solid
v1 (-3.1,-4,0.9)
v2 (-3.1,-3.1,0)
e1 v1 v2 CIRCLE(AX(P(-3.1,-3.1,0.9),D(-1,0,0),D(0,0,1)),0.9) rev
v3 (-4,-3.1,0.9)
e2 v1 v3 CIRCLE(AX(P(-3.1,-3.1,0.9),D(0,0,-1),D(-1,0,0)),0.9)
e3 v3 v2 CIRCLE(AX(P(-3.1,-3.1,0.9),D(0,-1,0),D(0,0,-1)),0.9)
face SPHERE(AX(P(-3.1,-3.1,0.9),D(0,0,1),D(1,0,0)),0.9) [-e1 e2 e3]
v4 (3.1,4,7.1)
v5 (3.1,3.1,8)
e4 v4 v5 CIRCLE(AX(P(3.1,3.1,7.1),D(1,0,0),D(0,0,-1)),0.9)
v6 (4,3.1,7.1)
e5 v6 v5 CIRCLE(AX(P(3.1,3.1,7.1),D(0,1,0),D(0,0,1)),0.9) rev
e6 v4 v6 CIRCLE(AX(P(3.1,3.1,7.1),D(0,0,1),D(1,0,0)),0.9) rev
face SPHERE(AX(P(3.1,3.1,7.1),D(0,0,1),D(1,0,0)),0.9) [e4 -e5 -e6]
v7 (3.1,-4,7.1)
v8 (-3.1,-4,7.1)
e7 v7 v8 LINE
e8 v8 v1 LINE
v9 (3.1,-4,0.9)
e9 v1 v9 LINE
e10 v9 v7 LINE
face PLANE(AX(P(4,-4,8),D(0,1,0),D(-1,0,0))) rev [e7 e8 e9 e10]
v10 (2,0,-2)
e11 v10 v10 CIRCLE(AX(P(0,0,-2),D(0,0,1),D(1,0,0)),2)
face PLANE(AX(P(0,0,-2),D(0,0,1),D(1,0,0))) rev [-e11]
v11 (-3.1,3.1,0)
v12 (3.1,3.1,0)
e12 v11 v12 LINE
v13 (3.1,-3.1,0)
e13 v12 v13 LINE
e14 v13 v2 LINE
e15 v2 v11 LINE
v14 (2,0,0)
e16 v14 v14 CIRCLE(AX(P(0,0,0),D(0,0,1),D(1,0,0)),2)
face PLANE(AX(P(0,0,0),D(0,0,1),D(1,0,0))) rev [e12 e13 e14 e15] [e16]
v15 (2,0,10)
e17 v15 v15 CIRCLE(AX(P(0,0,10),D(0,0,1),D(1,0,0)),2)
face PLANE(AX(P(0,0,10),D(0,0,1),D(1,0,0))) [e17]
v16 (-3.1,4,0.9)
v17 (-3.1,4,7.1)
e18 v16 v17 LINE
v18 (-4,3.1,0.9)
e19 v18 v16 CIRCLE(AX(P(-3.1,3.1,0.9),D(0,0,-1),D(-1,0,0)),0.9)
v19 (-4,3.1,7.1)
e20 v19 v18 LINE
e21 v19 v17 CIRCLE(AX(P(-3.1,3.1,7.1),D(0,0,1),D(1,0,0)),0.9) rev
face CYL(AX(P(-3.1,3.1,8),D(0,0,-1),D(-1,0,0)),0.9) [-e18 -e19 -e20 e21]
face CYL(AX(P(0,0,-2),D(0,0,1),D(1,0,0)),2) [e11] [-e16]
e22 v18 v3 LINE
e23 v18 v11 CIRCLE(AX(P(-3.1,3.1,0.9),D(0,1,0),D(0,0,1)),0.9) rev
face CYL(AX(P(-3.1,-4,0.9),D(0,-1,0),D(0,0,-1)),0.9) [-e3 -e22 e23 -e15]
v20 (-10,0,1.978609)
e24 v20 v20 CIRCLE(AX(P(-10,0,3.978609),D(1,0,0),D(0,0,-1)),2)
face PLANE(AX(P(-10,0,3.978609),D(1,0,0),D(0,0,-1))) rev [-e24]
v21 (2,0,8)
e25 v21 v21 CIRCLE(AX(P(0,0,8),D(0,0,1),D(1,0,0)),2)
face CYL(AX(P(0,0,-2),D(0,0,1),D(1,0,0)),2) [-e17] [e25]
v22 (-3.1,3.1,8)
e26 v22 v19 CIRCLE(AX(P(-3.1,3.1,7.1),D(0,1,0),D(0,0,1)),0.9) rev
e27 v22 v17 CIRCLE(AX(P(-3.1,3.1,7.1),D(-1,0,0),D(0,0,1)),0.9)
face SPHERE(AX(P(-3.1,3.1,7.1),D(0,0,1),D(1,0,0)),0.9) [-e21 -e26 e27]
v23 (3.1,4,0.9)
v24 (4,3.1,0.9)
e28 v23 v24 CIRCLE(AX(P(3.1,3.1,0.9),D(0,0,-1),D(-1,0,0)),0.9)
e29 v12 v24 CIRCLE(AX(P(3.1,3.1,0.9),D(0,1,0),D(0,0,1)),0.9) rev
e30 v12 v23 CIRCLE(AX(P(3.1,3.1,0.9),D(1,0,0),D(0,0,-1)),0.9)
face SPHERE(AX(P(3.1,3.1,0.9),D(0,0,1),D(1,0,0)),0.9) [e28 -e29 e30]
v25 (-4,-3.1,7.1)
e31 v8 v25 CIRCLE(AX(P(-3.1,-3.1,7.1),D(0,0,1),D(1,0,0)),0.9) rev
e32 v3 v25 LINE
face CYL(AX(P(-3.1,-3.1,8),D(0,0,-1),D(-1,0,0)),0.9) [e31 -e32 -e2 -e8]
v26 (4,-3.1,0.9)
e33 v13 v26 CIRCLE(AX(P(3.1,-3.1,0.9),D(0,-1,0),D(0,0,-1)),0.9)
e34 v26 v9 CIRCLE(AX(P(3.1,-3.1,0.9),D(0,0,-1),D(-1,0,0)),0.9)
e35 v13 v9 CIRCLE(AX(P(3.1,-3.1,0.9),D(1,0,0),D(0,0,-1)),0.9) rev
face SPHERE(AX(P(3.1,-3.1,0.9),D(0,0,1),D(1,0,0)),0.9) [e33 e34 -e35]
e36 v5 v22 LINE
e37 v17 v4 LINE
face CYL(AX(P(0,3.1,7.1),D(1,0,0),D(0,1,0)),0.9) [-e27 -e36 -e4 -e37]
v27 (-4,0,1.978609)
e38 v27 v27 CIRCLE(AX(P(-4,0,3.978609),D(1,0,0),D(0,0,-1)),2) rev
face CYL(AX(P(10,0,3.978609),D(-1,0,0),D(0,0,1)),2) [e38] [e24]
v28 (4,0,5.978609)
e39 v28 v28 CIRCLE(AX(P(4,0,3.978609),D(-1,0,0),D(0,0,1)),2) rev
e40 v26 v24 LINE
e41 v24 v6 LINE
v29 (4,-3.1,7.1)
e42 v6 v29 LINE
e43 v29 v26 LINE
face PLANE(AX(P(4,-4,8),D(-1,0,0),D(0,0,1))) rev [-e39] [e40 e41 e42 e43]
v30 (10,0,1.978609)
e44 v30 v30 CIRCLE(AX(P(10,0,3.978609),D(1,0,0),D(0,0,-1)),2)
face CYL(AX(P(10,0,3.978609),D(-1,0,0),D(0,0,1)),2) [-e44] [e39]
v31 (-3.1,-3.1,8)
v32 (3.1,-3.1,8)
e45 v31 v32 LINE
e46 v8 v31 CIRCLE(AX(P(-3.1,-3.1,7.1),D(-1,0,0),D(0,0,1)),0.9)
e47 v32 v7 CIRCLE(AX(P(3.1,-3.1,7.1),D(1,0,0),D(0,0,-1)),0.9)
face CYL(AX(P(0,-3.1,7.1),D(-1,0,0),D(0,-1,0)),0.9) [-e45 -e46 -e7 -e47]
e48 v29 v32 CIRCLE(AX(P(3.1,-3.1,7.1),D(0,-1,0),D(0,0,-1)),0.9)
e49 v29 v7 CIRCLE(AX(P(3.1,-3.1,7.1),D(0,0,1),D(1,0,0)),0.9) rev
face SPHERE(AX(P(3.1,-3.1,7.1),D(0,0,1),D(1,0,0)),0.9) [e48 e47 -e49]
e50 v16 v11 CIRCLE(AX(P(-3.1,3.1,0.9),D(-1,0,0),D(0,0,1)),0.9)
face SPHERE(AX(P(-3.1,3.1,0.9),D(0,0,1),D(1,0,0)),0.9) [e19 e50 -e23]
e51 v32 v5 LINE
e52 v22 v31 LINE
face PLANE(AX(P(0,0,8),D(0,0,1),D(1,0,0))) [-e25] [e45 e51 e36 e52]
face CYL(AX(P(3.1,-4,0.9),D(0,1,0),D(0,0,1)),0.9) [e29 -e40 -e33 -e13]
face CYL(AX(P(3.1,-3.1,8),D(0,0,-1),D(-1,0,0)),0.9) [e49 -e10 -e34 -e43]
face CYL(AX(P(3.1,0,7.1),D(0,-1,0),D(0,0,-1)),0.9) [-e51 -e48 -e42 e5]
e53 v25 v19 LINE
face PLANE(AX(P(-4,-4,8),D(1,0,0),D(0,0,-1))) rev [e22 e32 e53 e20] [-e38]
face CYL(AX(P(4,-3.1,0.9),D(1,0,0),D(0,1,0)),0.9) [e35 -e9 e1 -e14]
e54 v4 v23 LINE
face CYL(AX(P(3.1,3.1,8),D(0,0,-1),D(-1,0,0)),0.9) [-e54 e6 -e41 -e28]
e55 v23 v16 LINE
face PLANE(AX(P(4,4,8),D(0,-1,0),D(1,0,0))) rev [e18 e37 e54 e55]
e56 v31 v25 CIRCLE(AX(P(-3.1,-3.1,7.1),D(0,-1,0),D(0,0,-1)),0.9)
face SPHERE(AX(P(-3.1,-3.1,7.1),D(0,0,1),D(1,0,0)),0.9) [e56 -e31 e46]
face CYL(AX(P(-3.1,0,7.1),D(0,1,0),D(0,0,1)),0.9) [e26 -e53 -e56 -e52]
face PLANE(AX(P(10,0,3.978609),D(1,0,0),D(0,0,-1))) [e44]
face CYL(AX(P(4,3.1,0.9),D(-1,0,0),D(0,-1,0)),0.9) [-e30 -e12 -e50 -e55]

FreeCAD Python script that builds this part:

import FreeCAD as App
import Part
import Sketcher
from FreeCAD import Vector
Q = App.Units.Quantity


def add_polygon(sketch, points):
    """Adds a closed chain of lines whose ends are joined by coincident constraints."""
    first, n = sketch.GeometryCount, len(points)
    for a, b in zip(points, points[1:] + points[:1]):
        sketch.addGeometry(Part.LineSegment(App.Vector(*a, 0), App.Vector(*b, 0)), False)
    for i in range(n):
        sketch.addConstraint(Sketcher.Constraint("Coincident", first + i, 2, first + (i + 1) % n, 1))

doc = App.newDocument("Part")
body = doc.addObject("PartDesign::Body", "Body")

# Sketch on XY plane
sketch1 = doc.addObject("Sketcher::SketchObject", "Sketch")
body.addObject(sketch1)
sketch1.AttachmentSupport = (doc.XY_Plane, [""])
sketch1.MapMode = "FlatFace"
add_polygon(sketch1, [(-4, 4), (-4, -4), (4, -4), (4, 4)])  # lines 0-3
sketch1.addConstraint([
    Sketcher.Constraint("Vertical", 0),
    Sketcher.Constraint("Horizontal", 1),
    Sketcher.Constraint("Vertical", 2),
    Sketcher.Constraint("Horizontal", 3),
    Sketcher.Constraint("Symmetric", 0, 2, 2, 2, -1, 1),
    Sketcher.Constraint("Equal", 3, 0),
    Sketcher.Constraint("DistanceX", 1, 1, 1, 2, Q("8 mm")),
])
pad1 = doc.addObject("PartDesign::Pad", "Pad")
body.addObject(pad1)
pad1.Profile = sketch1
pad1.Length = 8
doc.recompute()

fillet = doc.addObject("PartDesign::Fillet", "Fillet")
body.addObject(fillet)
fillet.Base = (pad1, ["Edge1"])
fillet.UseAllEdges = True
fillet.Radius = 0.9

# Sketch on XY plane
sketch2 = doc.addObject("Sketcher::SketchObject", "Sketch001")
body.addObject(sketch2)
sketch2.AttachmentSupport = (doc.XY_Plane, [""])
sketch2.MapMode = "FlatFace"
sketch2.AttachmentOffset = App.Placement(Vector(0, 0, 8), App.Rotation())
sketch2.addGeometry(Part.Circle(Vector(0, 0, 0), Vector(0, 0, 1), 2), False)
sketch2.addConstraint([
    Sketcher.Constraint("Coincident", 0, 3, -1, 1),
    Sketcher.Constraint("Diameter", 0, Q("4 mm")),
])
pad2 = doc.addObject("PartDesign::Pad", "Pad001")
body.addObject(pad2)
pad2.Profile = sketch2
pad2.Type = "TwoLengths"
pad2.Length = 2
pad2.Length2 = 10

# Sketch on YZ plane
sketch3 = doc.addObject("Sketcher::SketchObject", "Sketch002")
body.addObject(sketch3)
sketch3.AttachmentSupport = (doc.YZ_Plane, [""])
sketch3.MapMode = "FlatFace"
sketch3.addGeometry(Part.Circle(Vector(0, 3.978609, 0), Vector(0, 0, 1), 2), False)
sketch3.addConstraint([
    Sketcher.Constraint("PointOnObject", 0, 3, -2),
    Sketcher.Constraint("Diameter", 0, Q("4 mm")),
    Sketcher.Constraint("DistanceY", -1, 1, 0, 3, Q("3.978609 mm")),
])
pad3 = doc.addObject("PartDesign::Pad", "Pad002")
body.addObject(pad3)
pad3.Profile = sketch3
pad3.Length = 20
pad3.Midplane = True

doc.recompute()
